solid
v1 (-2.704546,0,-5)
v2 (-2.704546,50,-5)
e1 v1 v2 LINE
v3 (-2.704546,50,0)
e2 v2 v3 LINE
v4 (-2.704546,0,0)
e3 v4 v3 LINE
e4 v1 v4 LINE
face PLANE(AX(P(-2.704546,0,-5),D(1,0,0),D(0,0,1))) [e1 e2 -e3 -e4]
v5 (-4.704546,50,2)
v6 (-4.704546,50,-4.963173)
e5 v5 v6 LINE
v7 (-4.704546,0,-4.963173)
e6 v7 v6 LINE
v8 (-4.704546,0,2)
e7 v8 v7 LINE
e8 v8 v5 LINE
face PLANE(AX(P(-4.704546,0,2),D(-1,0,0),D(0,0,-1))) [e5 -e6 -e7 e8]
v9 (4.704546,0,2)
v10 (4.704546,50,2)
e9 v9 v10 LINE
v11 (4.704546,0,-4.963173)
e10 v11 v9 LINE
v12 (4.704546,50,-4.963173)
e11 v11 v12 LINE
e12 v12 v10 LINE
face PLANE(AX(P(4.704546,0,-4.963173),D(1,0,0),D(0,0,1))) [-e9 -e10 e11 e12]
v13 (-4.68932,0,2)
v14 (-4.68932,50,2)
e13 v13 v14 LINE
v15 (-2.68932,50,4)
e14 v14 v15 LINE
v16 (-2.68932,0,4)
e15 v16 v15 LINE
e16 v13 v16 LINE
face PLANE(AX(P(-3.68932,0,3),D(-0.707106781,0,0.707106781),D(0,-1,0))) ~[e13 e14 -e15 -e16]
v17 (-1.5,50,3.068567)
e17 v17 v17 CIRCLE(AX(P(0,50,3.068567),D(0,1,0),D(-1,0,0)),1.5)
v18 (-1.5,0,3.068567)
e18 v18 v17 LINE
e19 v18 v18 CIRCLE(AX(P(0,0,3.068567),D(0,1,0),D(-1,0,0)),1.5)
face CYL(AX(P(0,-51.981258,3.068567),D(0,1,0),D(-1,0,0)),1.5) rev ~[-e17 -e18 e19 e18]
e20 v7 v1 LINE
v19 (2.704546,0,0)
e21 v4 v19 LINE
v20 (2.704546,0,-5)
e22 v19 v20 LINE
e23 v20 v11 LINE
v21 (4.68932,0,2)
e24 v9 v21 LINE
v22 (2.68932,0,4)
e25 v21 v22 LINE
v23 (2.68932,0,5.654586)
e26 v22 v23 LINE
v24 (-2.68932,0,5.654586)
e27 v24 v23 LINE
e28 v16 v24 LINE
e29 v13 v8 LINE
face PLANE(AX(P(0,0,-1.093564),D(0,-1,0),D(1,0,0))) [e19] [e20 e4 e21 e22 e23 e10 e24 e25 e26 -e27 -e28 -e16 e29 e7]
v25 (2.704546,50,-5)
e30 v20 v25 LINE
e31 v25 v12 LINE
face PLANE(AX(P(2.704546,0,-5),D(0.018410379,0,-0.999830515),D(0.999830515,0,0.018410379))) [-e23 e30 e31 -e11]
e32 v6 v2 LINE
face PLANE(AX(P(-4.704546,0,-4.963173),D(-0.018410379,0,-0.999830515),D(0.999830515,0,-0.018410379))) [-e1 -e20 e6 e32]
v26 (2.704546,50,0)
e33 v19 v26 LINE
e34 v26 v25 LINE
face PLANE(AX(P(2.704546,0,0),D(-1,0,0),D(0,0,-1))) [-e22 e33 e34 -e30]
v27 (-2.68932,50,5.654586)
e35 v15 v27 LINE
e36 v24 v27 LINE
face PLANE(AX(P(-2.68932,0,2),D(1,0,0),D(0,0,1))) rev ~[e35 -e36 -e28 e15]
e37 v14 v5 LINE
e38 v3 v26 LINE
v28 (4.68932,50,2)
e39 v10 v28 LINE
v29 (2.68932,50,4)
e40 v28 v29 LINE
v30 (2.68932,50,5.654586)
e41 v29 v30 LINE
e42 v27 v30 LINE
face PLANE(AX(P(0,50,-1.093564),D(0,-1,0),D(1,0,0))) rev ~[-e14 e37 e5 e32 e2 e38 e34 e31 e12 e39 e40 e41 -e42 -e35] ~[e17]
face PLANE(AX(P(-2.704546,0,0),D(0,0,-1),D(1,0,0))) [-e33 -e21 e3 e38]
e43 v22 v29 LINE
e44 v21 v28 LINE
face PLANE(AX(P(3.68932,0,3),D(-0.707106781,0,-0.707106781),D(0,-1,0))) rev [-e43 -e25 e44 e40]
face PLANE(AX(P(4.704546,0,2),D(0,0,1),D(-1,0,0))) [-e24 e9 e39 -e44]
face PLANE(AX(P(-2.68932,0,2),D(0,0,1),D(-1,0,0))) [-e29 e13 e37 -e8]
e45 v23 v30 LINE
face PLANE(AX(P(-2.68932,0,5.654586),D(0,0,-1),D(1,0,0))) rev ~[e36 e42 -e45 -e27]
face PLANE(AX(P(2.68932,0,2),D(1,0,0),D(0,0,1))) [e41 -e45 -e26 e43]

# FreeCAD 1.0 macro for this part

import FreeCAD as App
import Part
import Sketcher


def edges_at(feature, points):
    """Names of the edges that pass closest to the given points."""
    edges = feature.Shape.Edges
    near = lambda p: min(range(len(edges)), key=lambda i: edges[i].distToShape(Part.Vertex(*p))[0])
    return sorted({f"Edge{near(p) + 1}" for p in points})


def add_polygon(sketch, points):
    """Adds a closed chain of lines whose ends are joined by coincident constraints."""
    first, n = sketch.GeometryCount, len(points)
    for a, b in zip(points, points[1:] + points[:1]):
        sketch.addGeometry(Part.LineSegment(App.Vector(*a, 0), App.Vector(*b, 0)), False)
    for i in range(n):
        sketch.addConstraint(Sketcher.Constraint("Coincident", first + i, 2, first + (i + 1) % n, 1))

doc = App.newDocument("Part")
body = doc.addObject("PartDesign::Body", "Body")

# Sketch on XZ plane
sketch1 = doc.addObject("Sketcher::SketchObject", "Sketch")
body.addObject(sketch1)
sketch1.AttachmentSupport = (doc.XZ_Plane, [""])
sketch1.MapMode = "FlatFace"
add_polygon(sketch1, [(-2.704546, -5), (-2.704546, 0), (2.704546, 0), (2.704546, -5), (4.704546, -4.963173), (4.704546, 2), (2.68932, 2), (2.68932, 5.654586), (-2.68932, 5.654586), (-2.68932, 2), (-4.704546, 2), (-4.704546, -4.963173)])  # lines 0-11
sketch1.addConstraint(Sketcher.Constraint("Vertical", 0))
sketch1.addConstraint(Sketcher.Constraint("Horizontal", 1))
sketch1.addConstraint(Sketcher.Constraint("Vertical", 2))
sketch1.addConstraint(Sketcher.Constraint("Vertical", 4))
sketch1.addConstraint(Sketcher.Constraint("Horizontal", 5))
sketch1.addConstraint(Sketcher.Constraint("Vertical", 6))
sketch1.addConstraint(Sketcher.Constraint("Horizontal", 7))
sketch1.addConstraint(Sketcher.Constraint("Vertical", 8))
sketch1.addConstraint(Sketcher.Constraint("Horizontal", 9))
sketch1.addConstraint(Sketcher.Constraint("Vertical", 10))
sketch1.addConstraint(Sketcher.Constraint("Symmetric", 0, 2, 1, 2, -1, 1))
sketch1.addConstraint(Sketcher.Constraint("Symmetric", 5, 2, 8, 2, -2))
sketch1.addConstraint(Sketcher.Constraint("Symmetric", 3, 2, 10, 2, -2))
sketch1.addConstraint(Sketcher.Constraint("Horizontal", 2, 2, 11, 2))
sketch1.addConstraint(Sketcher.Constraint("DistanceY", 0, 1, 0, 2, 5.0))
sketch1.addConstraint(Sketcher.Constraint("DistanceY", -1, 1, 4, 2, 2.0))
sketch1.addConstraint(Sketcher.Constraint("DistanceX", 2, 2, 3, 2, 2.0))
sketch1.addConstraint(Sketcher.Constraint("DistanceX", 7, 2, 7, 1, 5.37864))
sketch1.addConstraint(Sketcher.Constraint("Distance", 3, 2.000339))
sketch1.addConstraint(Sketcher.Constraint("DistanceX", 1, 1, 1, 2, 5.409092))
sketch1.addConstraint(Sketcher.Constraint("DistanceY", 6, 1, 6, 2, 3.654586))
pad1 = doc.addObject("PartDesign::Pad", "Pad")
body.addObject(pad1)
pad1.Profile = sketch1
pad1.Length = 50
pad1.Reversed = True

# Sketch on XZ plane
sketch2 = doc.addObject("Sketcher::SketchObject", "Sketch001")
body.addObject(sketch2)
sketch2.AttachmentSupport = (doc.XZ_Plane, [""])
sketch2.MapMode = "FlatFace"
sketch2.addGeometry(Part.Circle(App.Vector(0, 3.1, 0), App.Vector(0, 0, 1), 1.5), False)
sketch2.addConstraint(Sketcher.Constraint("PointOnObject", 0, 3, -2))
sketch2.addConstraint(Sketcher.Constraint("Diameter", 0, 3.0))
sketch2.addConstraint(Sketcher.Constraint("DistanceY", -1, 1, 0, 3, 3.068567))
doc.recompute()
hole = doc.addObject("PartDesign::Hole", "Hole")
body.addObject(hole)
hole.Profile = sketch2
hole.ThreadType = "None"
hole.Diameter = 3
hole.DepthType = "ThroughAll"
doc.recompute()

chamfer = doc.addObject("PartDesign::Chamfer", "Chamfer")
body.addObject(chamfer)
chamfer.Base = (hole, edges_at(hole, [(2.689, 25, 2), (-2.689, 25, 2)]))
chamfer.Size = 2

doc.recompute()
